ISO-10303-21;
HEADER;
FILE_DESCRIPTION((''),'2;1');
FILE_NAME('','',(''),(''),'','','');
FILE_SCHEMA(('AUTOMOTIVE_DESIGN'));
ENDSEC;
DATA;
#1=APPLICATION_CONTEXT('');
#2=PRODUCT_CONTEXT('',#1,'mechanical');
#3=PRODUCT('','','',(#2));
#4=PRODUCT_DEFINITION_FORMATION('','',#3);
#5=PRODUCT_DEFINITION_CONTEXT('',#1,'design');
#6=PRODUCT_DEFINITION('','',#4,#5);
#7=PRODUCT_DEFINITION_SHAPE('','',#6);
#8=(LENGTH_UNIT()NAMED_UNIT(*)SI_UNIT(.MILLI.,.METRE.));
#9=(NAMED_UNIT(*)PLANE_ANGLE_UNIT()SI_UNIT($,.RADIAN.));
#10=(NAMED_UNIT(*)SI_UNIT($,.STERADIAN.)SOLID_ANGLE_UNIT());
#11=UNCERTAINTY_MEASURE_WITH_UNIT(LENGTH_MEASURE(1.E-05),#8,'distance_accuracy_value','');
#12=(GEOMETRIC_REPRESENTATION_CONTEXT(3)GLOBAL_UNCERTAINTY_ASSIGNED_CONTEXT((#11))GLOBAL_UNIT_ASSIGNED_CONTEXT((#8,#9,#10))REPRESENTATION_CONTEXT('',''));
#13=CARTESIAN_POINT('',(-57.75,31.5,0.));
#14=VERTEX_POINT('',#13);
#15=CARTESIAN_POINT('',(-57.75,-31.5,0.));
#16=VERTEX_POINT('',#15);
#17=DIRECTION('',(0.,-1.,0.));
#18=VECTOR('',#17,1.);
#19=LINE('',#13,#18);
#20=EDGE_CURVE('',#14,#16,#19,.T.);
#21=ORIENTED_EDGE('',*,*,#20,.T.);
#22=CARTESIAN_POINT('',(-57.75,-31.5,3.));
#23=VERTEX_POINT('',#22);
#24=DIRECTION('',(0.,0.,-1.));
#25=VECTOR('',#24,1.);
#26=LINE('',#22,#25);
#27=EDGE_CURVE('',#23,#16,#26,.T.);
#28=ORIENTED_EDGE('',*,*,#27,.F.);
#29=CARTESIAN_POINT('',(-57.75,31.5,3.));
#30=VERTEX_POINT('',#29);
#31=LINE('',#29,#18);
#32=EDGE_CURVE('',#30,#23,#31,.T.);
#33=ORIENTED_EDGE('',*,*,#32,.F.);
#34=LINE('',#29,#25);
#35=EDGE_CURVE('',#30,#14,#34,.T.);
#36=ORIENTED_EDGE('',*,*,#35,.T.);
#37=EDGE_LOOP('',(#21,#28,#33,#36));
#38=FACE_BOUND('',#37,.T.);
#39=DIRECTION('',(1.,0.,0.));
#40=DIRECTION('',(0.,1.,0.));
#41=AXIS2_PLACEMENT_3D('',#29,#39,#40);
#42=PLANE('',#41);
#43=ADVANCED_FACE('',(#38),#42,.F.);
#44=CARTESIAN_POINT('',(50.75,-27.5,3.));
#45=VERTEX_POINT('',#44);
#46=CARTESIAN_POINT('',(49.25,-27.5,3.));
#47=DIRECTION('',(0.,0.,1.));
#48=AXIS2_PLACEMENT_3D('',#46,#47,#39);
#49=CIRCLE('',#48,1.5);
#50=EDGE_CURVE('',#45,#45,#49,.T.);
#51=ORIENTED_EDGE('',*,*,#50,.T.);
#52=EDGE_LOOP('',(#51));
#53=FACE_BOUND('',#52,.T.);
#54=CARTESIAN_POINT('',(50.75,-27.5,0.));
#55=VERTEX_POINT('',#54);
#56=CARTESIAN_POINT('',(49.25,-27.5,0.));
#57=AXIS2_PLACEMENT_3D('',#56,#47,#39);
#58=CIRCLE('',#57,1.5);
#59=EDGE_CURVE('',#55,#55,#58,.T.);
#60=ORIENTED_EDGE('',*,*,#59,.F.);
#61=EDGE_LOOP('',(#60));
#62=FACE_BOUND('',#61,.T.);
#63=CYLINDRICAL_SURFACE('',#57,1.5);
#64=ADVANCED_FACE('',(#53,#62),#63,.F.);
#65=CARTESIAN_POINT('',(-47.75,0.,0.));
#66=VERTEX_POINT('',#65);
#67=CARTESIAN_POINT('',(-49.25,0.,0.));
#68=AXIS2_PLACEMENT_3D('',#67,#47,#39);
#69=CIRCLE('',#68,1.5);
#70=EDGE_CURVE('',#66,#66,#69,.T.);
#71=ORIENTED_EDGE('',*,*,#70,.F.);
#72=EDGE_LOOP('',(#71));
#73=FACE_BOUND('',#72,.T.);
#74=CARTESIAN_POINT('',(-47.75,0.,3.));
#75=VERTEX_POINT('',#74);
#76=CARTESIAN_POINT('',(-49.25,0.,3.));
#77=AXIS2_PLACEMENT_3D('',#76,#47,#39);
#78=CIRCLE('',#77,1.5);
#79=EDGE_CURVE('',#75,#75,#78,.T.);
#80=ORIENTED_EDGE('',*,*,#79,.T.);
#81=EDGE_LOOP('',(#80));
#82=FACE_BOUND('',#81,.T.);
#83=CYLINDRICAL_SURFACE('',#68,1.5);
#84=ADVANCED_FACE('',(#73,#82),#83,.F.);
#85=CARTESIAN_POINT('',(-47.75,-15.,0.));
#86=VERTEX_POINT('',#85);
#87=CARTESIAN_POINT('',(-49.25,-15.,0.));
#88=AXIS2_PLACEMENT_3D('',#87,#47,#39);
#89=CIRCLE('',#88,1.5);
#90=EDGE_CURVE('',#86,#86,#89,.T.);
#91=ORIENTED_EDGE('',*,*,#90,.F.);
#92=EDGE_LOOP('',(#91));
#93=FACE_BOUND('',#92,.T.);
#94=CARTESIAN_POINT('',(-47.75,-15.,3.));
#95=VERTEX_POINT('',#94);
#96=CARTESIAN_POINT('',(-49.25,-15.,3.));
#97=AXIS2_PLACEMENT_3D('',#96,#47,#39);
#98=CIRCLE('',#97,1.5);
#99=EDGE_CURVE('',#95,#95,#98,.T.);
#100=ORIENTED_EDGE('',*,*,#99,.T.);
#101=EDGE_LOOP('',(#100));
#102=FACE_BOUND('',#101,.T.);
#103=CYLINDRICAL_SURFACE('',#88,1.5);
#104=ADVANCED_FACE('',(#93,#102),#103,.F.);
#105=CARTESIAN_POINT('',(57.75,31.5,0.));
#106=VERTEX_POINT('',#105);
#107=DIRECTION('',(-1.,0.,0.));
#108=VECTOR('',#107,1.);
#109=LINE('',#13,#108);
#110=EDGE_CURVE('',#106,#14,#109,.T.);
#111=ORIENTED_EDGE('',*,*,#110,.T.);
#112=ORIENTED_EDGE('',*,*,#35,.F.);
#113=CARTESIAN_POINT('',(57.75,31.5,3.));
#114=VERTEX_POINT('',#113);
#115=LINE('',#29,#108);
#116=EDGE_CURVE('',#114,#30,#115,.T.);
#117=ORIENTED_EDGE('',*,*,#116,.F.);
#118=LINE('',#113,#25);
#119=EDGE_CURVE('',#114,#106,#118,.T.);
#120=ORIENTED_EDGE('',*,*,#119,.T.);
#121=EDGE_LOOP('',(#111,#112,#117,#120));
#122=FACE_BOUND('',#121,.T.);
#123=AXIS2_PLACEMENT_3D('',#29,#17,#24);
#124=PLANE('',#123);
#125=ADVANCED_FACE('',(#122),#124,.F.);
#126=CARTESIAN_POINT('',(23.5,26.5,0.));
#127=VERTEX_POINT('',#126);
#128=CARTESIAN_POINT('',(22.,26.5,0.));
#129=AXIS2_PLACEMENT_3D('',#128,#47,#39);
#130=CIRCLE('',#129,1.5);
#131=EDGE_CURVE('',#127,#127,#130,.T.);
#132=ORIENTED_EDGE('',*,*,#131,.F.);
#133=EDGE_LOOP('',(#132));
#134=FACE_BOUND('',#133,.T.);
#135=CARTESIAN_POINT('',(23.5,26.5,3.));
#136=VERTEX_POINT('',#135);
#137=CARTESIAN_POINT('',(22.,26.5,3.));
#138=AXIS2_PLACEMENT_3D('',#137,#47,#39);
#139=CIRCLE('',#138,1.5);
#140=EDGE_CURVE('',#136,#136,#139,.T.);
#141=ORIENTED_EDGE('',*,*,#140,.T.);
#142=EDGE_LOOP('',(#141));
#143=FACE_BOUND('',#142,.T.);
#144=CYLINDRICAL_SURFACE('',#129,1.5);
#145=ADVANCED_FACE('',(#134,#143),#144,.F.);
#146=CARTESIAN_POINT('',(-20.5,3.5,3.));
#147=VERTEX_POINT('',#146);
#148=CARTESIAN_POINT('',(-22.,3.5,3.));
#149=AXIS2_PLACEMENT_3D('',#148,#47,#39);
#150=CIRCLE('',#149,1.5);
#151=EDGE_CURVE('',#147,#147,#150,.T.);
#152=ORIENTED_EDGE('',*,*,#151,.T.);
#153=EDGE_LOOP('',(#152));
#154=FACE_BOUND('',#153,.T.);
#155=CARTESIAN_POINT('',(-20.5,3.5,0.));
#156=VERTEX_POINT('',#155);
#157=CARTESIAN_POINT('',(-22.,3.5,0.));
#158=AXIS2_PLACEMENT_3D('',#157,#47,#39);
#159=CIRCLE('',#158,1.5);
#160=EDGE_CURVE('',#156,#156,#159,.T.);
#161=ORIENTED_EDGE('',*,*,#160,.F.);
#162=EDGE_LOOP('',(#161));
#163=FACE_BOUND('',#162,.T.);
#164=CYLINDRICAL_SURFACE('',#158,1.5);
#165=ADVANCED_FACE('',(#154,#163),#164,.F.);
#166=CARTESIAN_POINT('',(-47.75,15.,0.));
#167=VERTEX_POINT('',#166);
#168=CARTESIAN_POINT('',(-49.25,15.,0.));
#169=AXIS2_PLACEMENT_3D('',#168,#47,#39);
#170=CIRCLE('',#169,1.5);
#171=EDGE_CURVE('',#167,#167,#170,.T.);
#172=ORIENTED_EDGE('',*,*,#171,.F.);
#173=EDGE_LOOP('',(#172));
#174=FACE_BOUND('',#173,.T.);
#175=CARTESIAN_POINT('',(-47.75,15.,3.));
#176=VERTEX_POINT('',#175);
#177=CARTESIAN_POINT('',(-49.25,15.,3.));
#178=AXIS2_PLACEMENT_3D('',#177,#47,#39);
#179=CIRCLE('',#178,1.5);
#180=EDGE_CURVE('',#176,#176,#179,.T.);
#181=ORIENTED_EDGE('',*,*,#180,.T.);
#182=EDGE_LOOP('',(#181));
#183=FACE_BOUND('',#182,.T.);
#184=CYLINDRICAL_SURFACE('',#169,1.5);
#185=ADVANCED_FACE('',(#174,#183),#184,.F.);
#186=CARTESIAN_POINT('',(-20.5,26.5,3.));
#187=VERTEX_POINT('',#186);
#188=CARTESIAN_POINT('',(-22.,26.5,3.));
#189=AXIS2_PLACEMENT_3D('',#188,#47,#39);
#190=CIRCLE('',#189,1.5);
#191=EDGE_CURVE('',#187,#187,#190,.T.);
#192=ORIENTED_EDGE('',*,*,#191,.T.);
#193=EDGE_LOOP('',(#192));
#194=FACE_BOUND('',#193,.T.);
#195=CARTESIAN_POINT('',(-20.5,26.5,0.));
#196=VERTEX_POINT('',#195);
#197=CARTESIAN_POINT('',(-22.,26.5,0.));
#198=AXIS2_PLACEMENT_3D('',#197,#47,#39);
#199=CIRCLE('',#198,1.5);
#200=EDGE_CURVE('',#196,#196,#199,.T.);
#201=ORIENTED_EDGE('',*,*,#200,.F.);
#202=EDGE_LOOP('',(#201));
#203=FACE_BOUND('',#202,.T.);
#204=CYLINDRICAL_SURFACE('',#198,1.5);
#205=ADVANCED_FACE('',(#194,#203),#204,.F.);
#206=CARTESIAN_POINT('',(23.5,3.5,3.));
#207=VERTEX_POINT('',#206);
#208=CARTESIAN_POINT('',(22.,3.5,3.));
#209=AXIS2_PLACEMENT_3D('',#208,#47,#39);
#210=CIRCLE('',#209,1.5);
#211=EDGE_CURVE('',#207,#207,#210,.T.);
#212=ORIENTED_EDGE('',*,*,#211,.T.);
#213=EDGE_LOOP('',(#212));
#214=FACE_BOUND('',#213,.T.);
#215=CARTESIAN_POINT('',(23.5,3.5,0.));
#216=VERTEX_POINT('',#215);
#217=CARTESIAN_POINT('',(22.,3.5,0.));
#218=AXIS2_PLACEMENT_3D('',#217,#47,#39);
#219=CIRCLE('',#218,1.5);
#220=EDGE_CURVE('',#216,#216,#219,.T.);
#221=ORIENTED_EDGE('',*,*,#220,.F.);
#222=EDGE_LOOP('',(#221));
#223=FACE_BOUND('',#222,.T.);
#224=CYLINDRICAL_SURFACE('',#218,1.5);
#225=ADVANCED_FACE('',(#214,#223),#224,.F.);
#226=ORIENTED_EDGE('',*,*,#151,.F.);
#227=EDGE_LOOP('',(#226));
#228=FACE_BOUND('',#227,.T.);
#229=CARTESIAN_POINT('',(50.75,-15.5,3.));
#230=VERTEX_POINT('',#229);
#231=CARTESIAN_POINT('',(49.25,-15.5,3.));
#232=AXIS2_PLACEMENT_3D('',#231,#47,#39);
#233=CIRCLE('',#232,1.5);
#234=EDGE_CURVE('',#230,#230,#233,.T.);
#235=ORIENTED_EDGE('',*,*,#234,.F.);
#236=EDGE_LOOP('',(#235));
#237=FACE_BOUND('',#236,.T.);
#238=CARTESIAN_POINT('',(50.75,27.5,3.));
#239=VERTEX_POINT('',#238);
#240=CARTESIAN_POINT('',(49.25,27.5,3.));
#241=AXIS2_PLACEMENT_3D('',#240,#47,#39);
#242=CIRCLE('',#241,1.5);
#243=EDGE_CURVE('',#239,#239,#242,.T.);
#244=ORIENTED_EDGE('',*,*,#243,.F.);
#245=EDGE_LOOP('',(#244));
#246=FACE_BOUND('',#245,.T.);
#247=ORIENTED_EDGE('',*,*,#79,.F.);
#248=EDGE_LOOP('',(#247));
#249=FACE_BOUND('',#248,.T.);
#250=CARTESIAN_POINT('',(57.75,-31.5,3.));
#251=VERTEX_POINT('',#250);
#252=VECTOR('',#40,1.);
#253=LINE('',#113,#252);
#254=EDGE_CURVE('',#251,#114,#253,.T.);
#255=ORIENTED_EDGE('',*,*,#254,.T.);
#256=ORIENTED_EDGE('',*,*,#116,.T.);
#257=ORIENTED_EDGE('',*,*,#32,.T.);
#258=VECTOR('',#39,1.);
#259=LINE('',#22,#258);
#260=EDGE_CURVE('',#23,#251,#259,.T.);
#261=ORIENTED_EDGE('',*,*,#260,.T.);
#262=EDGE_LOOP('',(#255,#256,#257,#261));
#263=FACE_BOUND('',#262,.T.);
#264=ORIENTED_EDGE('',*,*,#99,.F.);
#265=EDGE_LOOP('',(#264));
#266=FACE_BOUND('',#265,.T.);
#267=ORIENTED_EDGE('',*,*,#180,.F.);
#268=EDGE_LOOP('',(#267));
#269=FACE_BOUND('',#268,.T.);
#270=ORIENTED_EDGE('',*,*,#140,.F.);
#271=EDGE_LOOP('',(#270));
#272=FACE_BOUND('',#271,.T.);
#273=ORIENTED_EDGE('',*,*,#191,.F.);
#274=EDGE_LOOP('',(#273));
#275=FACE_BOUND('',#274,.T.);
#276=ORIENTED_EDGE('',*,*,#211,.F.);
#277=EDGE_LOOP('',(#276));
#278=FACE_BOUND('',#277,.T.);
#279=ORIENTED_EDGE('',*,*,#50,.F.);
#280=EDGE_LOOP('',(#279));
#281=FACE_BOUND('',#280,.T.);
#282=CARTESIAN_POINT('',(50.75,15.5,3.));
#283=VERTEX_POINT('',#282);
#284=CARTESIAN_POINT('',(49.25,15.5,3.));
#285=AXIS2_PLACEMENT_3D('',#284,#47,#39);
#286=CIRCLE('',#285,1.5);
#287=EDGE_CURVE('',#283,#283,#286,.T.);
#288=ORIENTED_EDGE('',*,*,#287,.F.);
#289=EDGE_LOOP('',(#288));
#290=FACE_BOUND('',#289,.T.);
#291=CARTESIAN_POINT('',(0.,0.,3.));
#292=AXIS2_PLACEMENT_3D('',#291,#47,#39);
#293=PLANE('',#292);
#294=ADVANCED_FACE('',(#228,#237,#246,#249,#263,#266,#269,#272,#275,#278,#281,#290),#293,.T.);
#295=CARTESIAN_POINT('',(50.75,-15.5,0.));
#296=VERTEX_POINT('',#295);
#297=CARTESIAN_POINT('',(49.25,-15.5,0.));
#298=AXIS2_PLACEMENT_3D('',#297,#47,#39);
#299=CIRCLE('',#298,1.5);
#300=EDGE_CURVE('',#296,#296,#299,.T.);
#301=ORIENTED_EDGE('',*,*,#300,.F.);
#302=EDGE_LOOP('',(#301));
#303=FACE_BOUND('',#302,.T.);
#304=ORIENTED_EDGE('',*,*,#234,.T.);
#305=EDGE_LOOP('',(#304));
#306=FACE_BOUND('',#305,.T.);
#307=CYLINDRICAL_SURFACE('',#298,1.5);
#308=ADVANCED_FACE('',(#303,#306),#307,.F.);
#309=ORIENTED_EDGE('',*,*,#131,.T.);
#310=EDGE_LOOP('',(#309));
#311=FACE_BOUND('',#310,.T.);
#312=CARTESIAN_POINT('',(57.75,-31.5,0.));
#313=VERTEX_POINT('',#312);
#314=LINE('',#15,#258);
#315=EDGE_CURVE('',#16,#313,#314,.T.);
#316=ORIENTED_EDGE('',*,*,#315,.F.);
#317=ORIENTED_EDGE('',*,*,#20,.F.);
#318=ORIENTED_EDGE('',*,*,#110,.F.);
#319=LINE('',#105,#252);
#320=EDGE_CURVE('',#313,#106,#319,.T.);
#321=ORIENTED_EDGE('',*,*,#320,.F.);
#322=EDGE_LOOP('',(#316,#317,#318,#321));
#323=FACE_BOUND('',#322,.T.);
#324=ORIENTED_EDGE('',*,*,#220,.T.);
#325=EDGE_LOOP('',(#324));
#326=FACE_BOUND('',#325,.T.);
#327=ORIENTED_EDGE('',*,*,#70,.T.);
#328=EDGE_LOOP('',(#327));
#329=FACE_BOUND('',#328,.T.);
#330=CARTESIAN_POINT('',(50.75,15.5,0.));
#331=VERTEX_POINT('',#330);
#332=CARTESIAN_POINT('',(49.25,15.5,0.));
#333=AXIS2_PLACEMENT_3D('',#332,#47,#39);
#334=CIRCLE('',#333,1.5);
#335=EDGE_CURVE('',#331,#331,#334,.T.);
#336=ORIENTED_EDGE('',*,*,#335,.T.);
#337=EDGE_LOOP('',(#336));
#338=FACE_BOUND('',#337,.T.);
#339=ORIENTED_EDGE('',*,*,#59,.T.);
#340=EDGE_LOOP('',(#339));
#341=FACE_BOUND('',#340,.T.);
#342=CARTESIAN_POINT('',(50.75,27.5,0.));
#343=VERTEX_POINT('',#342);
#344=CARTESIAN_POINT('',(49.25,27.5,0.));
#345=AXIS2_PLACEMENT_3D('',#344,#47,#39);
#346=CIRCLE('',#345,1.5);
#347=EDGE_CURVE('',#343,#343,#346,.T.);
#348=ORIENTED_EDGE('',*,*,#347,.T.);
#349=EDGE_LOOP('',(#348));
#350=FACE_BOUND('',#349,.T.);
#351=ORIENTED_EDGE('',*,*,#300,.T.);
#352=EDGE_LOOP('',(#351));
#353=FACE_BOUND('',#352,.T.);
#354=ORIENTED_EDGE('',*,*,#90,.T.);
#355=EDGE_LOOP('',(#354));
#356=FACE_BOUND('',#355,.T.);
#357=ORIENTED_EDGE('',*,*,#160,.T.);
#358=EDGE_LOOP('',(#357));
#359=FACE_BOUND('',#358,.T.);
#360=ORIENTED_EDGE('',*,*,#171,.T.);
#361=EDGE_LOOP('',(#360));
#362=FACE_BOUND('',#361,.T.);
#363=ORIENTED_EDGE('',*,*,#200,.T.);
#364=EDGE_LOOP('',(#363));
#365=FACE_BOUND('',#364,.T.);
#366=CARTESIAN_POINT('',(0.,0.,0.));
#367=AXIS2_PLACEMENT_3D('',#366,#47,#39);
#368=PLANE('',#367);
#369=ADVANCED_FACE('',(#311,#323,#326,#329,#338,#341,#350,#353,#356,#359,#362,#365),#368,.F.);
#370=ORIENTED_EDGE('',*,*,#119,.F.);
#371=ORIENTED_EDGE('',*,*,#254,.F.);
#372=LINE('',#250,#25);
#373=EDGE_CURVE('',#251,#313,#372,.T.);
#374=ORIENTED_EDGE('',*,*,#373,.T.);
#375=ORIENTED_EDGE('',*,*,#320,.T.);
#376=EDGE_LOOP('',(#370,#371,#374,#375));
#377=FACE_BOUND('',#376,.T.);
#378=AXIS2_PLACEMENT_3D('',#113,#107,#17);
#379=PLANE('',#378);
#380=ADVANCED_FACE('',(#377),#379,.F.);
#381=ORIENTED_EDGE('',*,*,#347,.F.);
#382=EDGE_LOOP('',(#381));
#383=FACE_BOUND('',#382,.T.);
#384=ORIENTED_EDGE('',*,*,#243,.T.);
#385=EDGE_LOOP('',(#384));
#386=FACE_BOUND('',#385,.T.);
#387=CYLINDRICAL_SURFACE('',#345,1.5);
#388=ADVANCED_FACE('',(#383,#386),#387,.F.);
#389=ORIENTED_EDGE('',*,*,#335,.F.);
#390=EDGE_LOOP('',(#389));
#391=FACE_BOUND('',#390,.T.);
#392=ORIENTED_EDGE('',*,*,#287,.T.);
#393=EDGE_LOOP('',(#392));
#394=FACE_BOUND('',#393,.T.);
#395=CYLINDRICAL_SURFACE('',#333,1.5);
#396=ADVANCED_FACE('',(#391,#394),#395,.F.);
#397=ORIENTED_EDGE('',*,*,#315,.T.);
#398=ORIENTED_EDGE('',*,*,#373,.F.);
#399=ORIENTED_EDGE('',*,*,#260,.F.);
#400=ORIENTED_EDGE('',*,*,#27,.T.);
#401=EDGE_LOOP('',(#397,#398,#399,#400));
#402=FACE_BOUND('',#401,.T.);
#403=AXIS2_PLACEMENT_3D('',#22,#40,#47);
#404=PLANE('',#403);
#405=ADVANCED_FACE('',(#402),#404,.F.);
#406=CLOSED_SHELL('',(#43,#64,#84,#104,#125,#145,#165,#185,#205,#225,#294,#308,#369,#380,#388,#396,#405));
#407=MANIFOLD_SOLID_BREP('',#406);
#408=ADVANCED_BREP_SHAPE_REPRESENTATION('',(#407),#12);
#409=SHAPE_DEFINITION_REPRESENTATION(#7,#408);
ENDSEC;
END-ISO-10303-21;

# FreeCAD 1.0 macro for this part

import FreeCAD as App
import Part
import Sketcher
Q = App.Units.Quantity

doc = App.newDocument("Part")
body = doc.addObject("PartDesign::Body", "Body")

sketch1 = body.newObject("Sketcher::SketchObject", "Sketch")
sketch1.AttachmentSupport = (doc.getObject("XY_Plane"), [""])
sketch1.MapMode = "FlatFace"
sketch1.addGeometry([
    Part.LineSegment(App.Vector(-57.75, 31.5, 0), App.Vector(-57.75, -31.5, 0)),
    Part.LineSegment(App.Vector(-57.75, -31.5, 0), App.Vector(57.75, -31.5, 0)),
    Part.LineSegment(App.Vector(57.75, -31.5, 0), App.Vector(57.75, 31.5, 0)),
    Part.LineSegment(App.Vector(57.75, 31.5, 0), App.Vector(-57.75, 31.5, 0)),
], False)
sketch1.addConstraint([
    Sketcher.Constraint("Coincident", 0, 2, 1, 1),
    Sketcher.Constraint("Coincident", 1, 2, 2, 1),
    Sketcher.Constraint("Coincident", 2, 2, 3, 1),
    Sketcher.Constraint("Coincident", 3, 2, 0, 1),
    Sketcher.Constraint("Vertical", 0),
    Sketcher.Constraint("Horizontal", 1),
    Sketcher.Constraint("Vertical", 2),
    Sketcher.Constraint("Horizontal", 3),
    Sketcher.Constraint("Symmetric", 0, 2, 2, 2, -1, 1),
    Sketcher.Constraint("DistanceY", 0, 2, 0, 1, Q("63 mm")),
    Sketcher.Constraint("DistanceX", 1, 1, 1, 2, Q("115.5 mm")),
])
pad1 = body.newObject("PartDesign::Pad", "Pad")
pad1.Profile = sketch1
pad1.Length = 3

sketch2 = body.newObject("Sketcher::SketchObject", "Sketch001")
sketch2.AttachmentSupport = (doc.getObject("XY_Plane"), [""])
sketch2.MapMode = "FlatFace"
sketch2.AttachmentOffset = App.Placement(App.Vector(0, 0, 3), App.Rotation())
sketch2.addGeometry([
    Part.Circle(App.Vector(49.25, 27.5, 0), App.Vector(0, 0, 1), 1.5),
    Part.Circle(App.Vector(49.25, -27.5, 0), App.Vector(0, 0, 1), 1.5),
    Part.Circle(App.Vector(49.25, 15.5, 0), App.Vector(0, 0, 1), 1.5),
    Part.Circle(App.Vector(49.25, -15.5, 0), App.Vector(0, 0, 1), 1.5),
    Part.Circle(App.Vector(-49.25, 0, 0), App.Vector(0, 0, 1), 1.5),
    Part.Circle(App.Vector(-49.25, 15, 0), App.Vector(0, 0, 1), 1.5),
    Part.Circle(App.Vector(-49.25, -15, 0), App.Vector(0, 0, 1), 1.5),
], False)
sketch2.addConstraint([
    Sketcher.Constraint("Equal", 0, 1),
    Sketcher.Constraint("Equal", 1, 2),
    Sketcher.Constraint("Equal", 2, 3),
    Sketcher.Constraint("Equal", 3, 4),
    Sketcher.Constraint("Equal", 4, 5),
    Sketcher.Constraint("Equal", 5, 6),
    Sketcher.Constraint("Symmetric", 0, 3, 1, 3, -1),
    Sketcher.Constraint("Symmetric", 2, 3, 3, 3, -1),
    Sketcher.Constraint("Symmetric", 5, 3, 6, 3, -1),
    Sketcher.Constraint("PointOnObject", 4, 3, -1),
    Sketcher.Constraint("Vertical", 1, 3, 2, 3),
    Sketcher.Constraint("Vertical", 4, 3, 5, 3),
    Sketcher.Constraint("Diameter", 0, Q("3 mm")),
    Sketcher.Constraint("DistanceY", -1, 1, 5, 3, Q("15 mm")),
    Sketcher.Constraint("DistanceY", 1, 3, 0, 3, Q("55 mm")),
    Sketcher.Constraint("DistanceY", 2, 3, 0, 3, Q("12 mm")),
    Sketcher.Constraint("DistanceX", 4, 3, 2, 3, Q("98.5 mm")),
    Sketcher.Constraint("DistanceX", -1, 1, 0, 3, Q("49.25 mm")),
])
pocket1 = body.newObject("PartDesign::Pocket", "Pocket")
pocket1.Profile = sketch2
pocket1.Type = "ThroughAll"

sketch3 = body.newObject("Sketcher::SketchObject", "Sketch002")
sketch3.AttachmentSupport = (doc.getObject("XY_Plane"), [""])
sketch3.MapMode = "FlatFace"
sketch3.AttachmentOffset = App.Placement(App.Vector(0, 0, 3), App.Rotation())
sketch3.addGeometry([
    Part.Circle(App.Vector(-22, 26.5, 0), App.Vector(0, 0, 1), 1.5),
    Part.Circle(App.Vector(22, 26.5, 0), App.Vector(0, 0, 1), 1.5),
    Part.Circle(App.Vector(22, 3.5, 0), App.Vector(0, 0, 1), 1.5),
    Part.Circle(App.Vector(-22, 3.5, 0), App.Vector(0, 0, 1), 1.5),
], False)
sketch3.addConstraint([
    Sketcher.Constraint("Equal", 0, 1),
    Sketcher.Constraint("Equal", 1, 2),
    Sketcher.Constraint("Equal", 2, 3),
    Sketcher.Constraint("Symmetric", 0, 3, 1, 3, -2),
    Sketcher.Constraint("Symmetric", 2, 3, 3, 3, -2),
    Sketcher.Constraint("Vertical", 1, 3, 2, 3),
    Sketcher.Constraint("Diameter", 0, Q("3 mm")),
    Sketcher.Constraint("DistanceX", 0, 3, -1, 1, Q("22 mm")),
    Sketcher.Constraint("DistanceY", 2, 3, 1, 3, Q("23 mm")),
    Sketcher.Constraint("DistanceY", -1, 1, 0, 3, Q("26.5 mm")),
])
pocket2 = body.newObject("PartDesign::Pocket", "Pocket001")
pocket2.Profile = sketch3
pocket2.Type = "ThroughAll"

doc.recompute()
